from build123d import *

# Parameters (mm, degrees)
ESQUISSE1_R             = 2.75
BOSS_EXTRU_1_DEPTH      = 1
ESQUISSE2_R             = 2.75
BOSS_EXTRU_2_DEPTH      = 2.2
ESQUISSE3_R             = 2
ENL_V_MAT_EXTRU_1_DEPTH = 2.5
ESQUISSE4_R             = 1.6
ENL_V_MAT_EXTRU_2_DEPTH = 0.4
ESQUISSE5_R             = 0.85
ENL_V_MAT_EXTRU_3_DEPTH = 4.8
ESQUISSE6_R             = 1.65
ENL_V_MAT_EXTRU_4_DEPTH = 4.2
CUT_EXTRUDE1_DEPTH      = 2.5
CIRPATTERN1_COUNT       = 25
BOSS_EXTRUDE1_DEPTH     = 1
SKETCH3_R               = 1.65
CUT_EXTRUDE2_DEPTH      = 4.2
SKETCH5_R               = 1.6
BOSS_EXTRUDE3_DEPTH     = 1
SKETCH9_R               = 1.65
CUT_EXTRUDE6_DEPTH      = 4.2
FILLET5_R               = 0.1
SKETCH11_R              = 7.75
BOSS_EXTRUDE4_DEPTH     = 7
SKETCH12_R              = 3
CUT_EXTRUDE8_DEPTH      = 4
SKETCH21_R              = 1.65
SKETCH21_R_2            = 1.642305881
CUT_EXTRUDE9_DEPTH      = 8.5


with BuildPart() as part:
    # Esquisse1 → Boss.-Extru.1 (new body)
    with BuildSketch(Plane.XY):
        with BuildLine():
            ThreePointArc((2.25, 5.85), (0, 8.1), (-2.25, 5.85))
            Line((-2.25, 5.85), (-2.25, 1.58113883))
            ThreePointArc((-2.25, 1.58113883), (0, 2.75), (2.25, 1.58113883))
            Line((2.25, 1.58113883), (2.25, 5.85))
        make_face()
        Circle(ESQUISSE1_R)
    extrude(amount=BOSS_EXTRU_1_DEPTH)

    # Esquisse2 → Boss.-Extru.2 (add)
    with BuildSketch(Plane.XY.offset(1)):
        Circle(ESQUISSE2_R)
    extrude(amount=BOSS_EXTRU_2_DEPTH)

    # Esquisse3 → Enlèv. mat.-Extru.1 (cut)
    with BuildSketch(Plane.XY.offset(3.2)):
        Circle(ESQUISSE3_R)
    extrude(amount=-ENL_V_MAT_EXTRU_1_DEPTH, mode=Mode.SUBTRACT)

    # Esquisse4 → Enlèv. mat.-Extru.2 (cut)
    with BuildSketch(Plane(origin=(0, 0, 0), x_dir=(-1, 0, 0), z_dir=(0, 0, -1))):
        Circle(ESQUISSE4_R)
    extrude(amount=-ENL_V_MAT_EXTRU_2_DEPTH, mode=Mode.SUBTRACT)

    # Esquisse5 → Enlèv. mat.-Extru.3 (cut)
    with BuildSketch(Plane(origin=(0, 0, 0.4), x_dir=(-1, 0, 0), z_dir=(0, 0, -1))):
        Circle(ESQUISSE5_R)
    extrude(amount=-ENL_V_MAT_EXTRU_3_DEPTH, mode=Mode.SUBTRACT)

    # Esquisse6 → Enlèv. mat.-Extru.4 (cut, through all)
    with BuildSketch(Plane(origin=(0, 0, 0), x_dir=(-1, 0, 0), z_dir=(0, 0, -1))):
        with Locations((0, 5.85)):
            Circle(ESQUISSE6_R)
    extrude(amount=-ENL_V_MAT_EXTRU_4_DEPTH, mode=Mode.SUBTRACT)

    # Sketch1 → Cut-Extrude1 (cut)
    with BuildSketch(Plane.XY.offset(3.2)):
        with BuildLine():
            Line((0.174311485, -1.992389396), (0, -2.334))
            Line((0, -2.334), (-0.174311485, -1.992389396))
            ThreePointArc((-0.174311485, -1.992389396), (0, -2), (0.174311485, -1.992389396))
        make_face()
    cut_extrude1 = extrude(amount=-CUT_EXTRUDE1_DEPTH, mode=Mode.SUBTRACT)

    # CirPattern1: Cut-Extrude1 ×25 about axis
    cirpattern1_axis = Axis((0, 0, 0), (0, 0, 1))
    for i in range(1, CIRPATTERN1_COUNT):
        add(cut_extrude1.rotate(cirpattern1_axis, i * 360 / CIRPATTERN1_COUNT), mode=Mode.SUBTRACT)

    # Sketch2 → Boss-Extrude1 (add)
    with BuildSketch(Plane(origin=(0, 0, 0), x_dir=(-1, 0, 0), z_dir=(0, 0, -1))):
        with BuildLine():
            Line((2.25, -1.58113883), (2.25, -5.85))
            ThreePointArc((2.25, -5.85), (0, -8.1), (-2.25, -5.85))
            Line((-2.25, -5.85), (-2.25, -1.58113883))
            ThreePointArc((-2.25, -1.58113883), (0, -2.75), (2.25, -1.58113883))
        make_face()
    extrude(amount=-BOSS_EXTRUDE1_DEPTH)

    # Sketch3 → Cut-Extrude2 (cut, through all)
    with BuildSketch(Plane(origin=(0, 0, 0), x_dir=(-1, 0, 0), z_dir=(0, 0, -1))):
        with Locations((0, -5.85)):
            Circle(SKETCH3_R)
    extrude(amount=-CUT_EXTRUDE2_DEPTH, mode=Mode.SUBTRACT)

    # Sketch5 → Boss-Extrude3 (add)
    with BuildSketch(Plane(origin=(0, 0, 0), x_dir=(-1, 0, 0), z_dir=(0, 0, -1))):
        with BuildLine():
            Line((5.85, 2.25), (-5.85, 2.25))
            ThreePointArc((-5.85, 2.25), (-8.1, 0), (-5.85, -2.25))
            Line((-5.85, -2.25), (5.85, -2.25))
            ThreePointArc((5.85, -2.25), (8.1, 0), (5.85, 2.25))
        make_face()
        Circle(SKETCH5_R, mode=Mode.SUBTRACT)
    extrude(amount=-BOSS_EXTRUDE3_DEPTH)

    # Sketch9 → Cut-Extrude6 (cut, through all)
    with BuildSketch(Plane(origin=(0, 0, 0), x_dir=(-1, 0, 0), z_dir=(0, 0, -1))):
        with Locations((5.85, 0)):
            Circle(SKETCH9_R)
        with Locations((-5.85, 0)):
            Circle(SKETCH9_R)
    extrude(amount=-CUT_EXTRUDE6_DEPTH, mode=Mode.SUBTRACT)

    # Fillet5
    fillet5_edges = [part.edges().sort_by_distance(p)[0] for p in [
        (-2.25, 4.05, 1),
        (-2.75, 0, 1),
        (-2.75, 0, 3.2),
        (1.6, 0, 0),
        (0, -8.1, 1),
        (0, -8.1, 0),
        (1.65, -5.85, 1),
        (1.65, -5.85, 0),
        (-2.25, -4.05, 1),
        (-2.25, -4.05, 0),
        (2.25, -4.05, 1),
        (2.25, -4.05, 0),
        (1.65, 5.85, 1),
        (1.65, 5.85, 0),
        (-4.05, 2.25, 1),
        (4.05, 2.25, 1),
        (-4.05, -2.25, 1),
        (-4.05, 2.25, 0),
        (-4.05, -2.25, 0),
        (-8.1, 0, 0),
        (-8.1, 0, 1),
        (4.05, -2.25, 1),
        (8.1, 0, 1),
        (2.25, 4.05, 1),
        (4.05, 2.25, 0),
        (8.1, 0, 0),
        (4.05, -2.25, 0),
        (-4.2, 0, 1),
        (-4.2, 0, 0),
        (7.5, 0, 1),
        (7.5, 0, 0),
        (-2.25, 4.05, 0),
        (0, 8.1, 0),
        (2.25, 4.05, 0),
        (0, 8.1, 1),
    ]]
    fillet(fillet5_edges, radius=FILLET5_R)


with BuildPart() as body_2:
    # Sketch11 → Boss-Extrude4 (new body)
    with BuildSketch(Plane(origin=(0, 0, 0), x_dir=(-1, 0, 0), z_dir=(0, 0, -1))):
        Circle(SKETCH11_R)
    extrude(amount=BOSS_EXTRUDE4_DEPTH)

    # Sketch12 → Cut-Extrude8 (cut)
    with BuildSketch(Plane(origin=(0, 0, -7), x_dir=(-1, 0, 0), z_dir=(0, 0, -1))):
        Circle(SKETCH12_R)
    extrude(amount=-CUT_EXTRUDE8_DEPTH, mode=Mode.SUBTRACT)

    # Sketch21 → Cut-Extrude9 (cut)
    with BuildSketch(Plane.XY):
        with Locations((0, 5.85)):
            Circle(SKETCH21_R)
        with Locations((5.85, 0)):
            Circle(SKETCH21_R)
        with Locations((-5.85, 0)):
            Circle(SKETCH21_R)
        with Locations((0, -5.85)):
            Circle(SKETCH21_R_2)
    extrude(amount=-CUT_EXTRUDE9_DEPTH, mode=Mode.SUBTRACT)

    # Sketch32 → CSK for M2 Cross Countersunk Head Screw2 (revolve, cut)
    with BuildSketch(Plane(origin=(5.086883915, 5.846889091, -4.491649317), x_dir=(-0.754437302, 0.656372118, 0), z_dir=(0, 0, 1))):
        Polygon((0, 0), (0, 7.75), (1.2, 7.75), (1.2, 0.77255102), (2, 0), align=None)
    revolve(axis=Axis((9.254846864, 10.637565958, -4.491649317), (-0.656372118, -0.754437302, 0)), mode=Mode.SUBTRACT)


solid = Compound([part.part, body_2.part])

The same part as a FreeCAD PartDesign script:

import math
import FreeCAD as App
import Part
import Sketcher
from FreeCAD import Vector


def edges_at(feature, points):
    """Names of the edges that pass closest to the given points."""
    edges = feature.Shape.Edges
    near = lambda p: min(range(len(edges)), key=lambda i: edges[i].distToShape(Part.Vertex(*p))[0])
    return sorted({f"Edge{near(p) + 1}" for p in points})

doc = App.newDocument("Part")
params = doc.addObject("Spreadsheet::Sheet", "Params")
for row, (alias, value) in enumerate([
    ("sketch1_radius", "2.25 mm"),
    ("sketch1_radius2", "2.75 mm"),
    ("pad1_length", "1 mm"),
    ("sketch2_diameter", "5.5 mm"),
    ("pad2_length", "2.2 mm"),
    ("sketch3_diameter", "4 mm"),
    ("pocket1_length", "2.5 mm"),
    ("sketch4_diameter", "3.2 mm"),
    ("pocket2_length", "0.4 mm"),
    ("sketch5_diameter", "1.7 mm"),
    ("pocket3_length", "4.8 mm"),
    ("sketch6_diameter", "3.3 mm"),
    ("sketch7_radius", "2 mm"),
    ("pocket5_length", "2.5 mm"),
    ("sketch8_radius", "2.75 mm"),
    ("sketch8_radius2", "2.25 mm"),
    ("pad3_length", "1 mm"),
    ("sketch9_diameter", "3.3 mm"),
    ("sketch10_diameter", "3.2 mm"),
    ("sketch10_radius", "2.25 mm"),
    ("sketch10_width", "11.7 mm"),
    ("pad4_length", "1 mm"),
    ("sketch11_diameter", "3.3 mm"),
    ("fillet_radius", "0.1 mm"),
    ("sketch12_diameter", "15.5 mm"),
    ("pad5_length", "7 mm"),
    ("sketch13_diameter", "6 mm"),
    ("pocket8_length", "4 mm"),
    ("sketch14_diameter", "3.3 mm"),
    ("pocket9_length", "8.5 mm"),
    ("sketch15_length", "2 mm"),
    ("sketch15_length2", "1.2 mm"),
    ("sketch15_length3", "7.75 mm"),
    ("groove_angle", "360 deg"),
], start=1):
    params.set(f"A{row}", alias)
    params.set(f"B{row}", "=" + value)
    params.setAlias(f"B{row}", alias)

body = doc.addObject("PartDesign::Body", "Body")

# Sketch on XY plane
sketch1 = body.newObject("Sketcher::SketchObject", "Sketch")
sketch1.AttachmentSupport = (doc.getObject("XY_Plane"), [""])
sketch1.MapMode = "FlatFace"
sketch1.addGeometry(Part.ArcOfCircle(Part.Circle(Vector(0, 5.8, 0), Vector(0, 0, 1), 2.2), math.radians(0), math.radians(180)), False)
sketch1.addGeometry(Part.LineSegment(Vector(-2.2, 5.8, 0), Vector(-2.2, 1.6, 0)), False)
sketch1.addGeometry(Part.ArcOfCircle(Part.Circle(Vector(0, 0, 0), Vector(0, 0, 1), 2.8), math.radians(145), math.radians(395)), False)
sketch1.addGeometry(Part.LineSegment(Vector(2.2, 1.6, 0), Vector(2.2, 5.8, 0)), False)
sketch1.addConstraint(Sketcher.Constraint("Tangent", 0, 2, 1, 1))
sketch1.addConstraint(Sketcher.Constraint("Coincident", 1, 2, 2, 1))
sketch1.addConstraint(Sketcher.Constraint("Coincident", 2, 2, 3, 1))
sketch1.addConstraint(Sketcher.Constraint("Tangent", 3, 2, 0, 1))
sketch1.addConstraint(Sketcher.Constraint("Vertical", 1))
sketch1.addConstraint(Sketcher.Constraint("Vertical", 3))
sketch1.addConstraint(Sketcher.Constraint("Coincident", 2, 3, -1, 1))
sketch1.addConstraint(Sketcher.Constraint("PointOnObject", 0, 3, -2))
sketch1.addConstraint(Sketcher.Constraint("Radius", 0, 2.25))
sketch1.addConstraint(Sketcher.Constraint("Radius", 2, 2.75))
sketch1.addConstraint(Sketcher.Constraint("DistanceY", -1, 1, 0, 3, 5.85))
sketch1.setExpression("Constraints[8]", "Params.sketch1_radius")
sketch1.setExpression("Constraints[9]", "Params.sketch1_radius2")
pad1 = body.newObject("PartDesign::Pad", "Pad")
pad1.Profile = sketch1
pad1.setExpression("Length", "Params.pad1_length")

# Sketch on XY plane
sketch2 = body.newObject("Sketcher::SketchObject", "Sketch001")
sketch2.AttachmentSupport = (doc.getObject("XY_Plane"), [""])
sketch2.MapMode = "FlatFace"
sketch2.AttachmentOffset = App.Placement(Vector(0, 0, 1), App.Rotation())
sketch2.addGeometry(Part.Circle(Vector(0, 0, 0), Vector(0, 0, 1), 2.8), False)
sketch2.addConstraint(Sketcher.Constraint("Coincident", 0, 3, -1, 1))
sketch2.addConstraint(Sketcher.Constraint("Diameter", 0, 5.5))
sketch2.setExpression("Constraints[1]", "Params.sketch2_diameter")
pad2 = body.newObject("PartDesign::Pad", "Pad001")
pad2.Profile = sketch2
pad2.setExpression("Length", "Params.pad2_length")

# Sketch on XY plane
sketch3 = body.newObject("Sketcher::SketchObject", "Sketch002")
sketch3.AttachmentSupport = (doc.getObject("XY_Plane"), [""])
sketch3.MapMode = "FlatFace"
sketch3.AttachmentOffset = App.Placement(Vector(0, 0, 3.2), App.Rotation())
sketch3.addGeometry(Part.Circle(Vector(0, 0, 0), Vector(0, 0, 1), 2), False)
sketch3.addConstraint(Sketcher.Constraint("Coincident", 0, 3, -1, 1))
sketch3.addConstraint(Sketcher.Constraint("Diameter", 0, 4.0))
sketch3.setExpression("Constraints[1]", "Params.sketch3_diameter")
pocket1 = body.newObject("PartDesign::Pocket", "Pocket")
pocket1.Profile = sketch3
pocket1.setExpression("Length", "Params.pocket1_length")

# Sketch on XY plane
sketch4 = body.newObject("Sketcher::SketchObject", "Sketch003")
sketch4.AttachmentSupport = (doc.getObject("XY_Plane"), [""])
sketch4.MapMode = "FlatFace"
sketch4.addGeometry(Part.Circle(Vector(0, 0, 0), Vector(0, 0, 1), 1.6), False)
sketch4.addConstraint(Sketcher.Constraint("Coincident", 0, 3, -1, 1))
sketch4.addConstraint(Sketcher.Constraint("Diameter", 0, 3.2))
sketch4.setExpression("Constraints[1]", "Params.sketch4_diameter")
pocket2 = body.newObject("PartDesign::Pocket", "Pocket001")
pocket2.Profile = sketch4
pocket2.setExpression("Length", "Params.pocket2_length")
pocket2.Reversed = True

# Sketch on XY plane
sketch5 = body.newObject("Sketcher::SketchObject", "Sketch004")
sketch5.AttachmentSupport = (doc.getObject("XY_Plane"), [""])
sketch5.MapMode = "FlatFace"
sketch5.AttachmentOffset = App.Placement(Vector(0, 0, 0.4), App.Rotation())
sketch5.addGeometry(Part.Circle(Vector(0, 0, 0), Vector(0, 0, 1), 0.8), False)
sketch5.addConstraint(Sketcher.Constraint("Coincident", 0, 3, -1, 1))
sketch5.addConstraint(Sketcher.Constraint("Diameter", 0, 1.7))
sketch5.setExpression("Constraints[1]", "Params.sketch5_diameter")
pocket3 = body.newObject("PartDesign::Pocket", "Pocket002")
pocket3.Profile = sketch5
pocket3.setExpression("Length", "Params.pocket3_length")
pocket3.Reversed = True

# Sketch on XY plane
sketch6 = body.newObject("Sketcher::SketchObject", "Sketch005")
sketch6.AttachmentSupport = (doc.getObject("XY_Plane"), [""])
sketch6.MapMode = "FlatFace"
sketch6.addGeometry(Part.Circle(Vector(0, 5.8, 0), Vector(0, 0, 1), 1.6), False)
sketch6.addConstraint(Sketcher.Constraint("PointOnObject", 0, 3, -2))
sketch6.addConstraint(Sketcher.Constraint("Diameter", 0, 3.3))
sketch6.addConstraint(Sketcher.Constraint("DistanceY", -1, 1, 0, 3, 5.85))
sketch6.setExpression("Constraints[1]", "Params.sketch6_diameter")
pocket4 = body.newObject("PartDesign::Pocket", "Pocket003")
pocket4.Profile = sketch6
pocket4.Type = "ThroughAll"
pocket4.Reversed = True

# Sketch on XY plane
sketch7 = body.newObject("Sketcher::SketchObject", "Sketch006")
sketch7.AttachmentSupport = (doc.getObject("XY_Plane"), [""])
sketch7.MapMode = "FlatFace"
sketch7.AttachmentOffset = App.Placement(Vector(0, 0, 3.2), App.Rotation())
sketch7.addGeometry(Part.LineSegment(Vector(0, -2.33, 0), Vector(0.17, -1.99, 0)), False)
sketch7.addGeometry(Part.ArcOfCircle(Part.Circle(Vector(0, 0, 0), Vector(0, 0, 1), 2), math.radians(-95), math.radians(-85)), False)
sketch7.addGeometry(Part.LineSegment(Vector(-0.17, -1.99, 0), Vector(0, -2.33, 0)), False)
sketch7.addConstraint(Sketcher.Constraint("Coincident", 0, 2, 1, 2))
sketch7.addConstraint(Sketcher.Constraint("Coincident", 1, 1, 2, 1))
sketch7.addConstraint(Sketcher.Constraint("Coincident", 2, 2, 0, 1))
sketch7.addConstraint(Sketcher.Constraint("Coincident", 1, 3, -1, 1))
sketch7.addConstraint(Sketcher.Constraint("PointOnObject", 2, 2, -2))
sketch7.addConstraint(Sketcher.Constraint("Horizontal", 0, 2, 1, 1))
sketch7.addConstraint(Sketcher.Constraint("Radius", 1, 2.0))
sketch7.addConstraint(Sketcher.Constraint("DistanceY", 2, 2, -1, 1, 2.334))
sketch7.addConstraint(Sketcher.Constraint("DistanceX", -1, 1, 0, 2, 0.174311))
sketch7.setExpression("Constraints[6]", "Params.sketch7_radius")
pocket5 = body.newObject("PartDesign::Pocket", "Pocket004")
pocket5.Profile = sketch7
pocket5.setExpression("Length", "Params.pocket5_length")
doc.recompute()

polarpattern = body.newObject("PartDesign::PolarPattern", "PolarPattern")
polarpattern.Originals = [pocket5]
polarpattern.Axis = (doc.getObject("Z_Axis"), [""])
polarpattern.Angle = 360
polarpattern.Occurrences = 25
body.Tip = polarpattern

# Sketch on XY plane
sketch8 = body.newObject("Sketcher::SketchObject", "Sketch007")
sketch8.AttachmentSupport = (doc.getObject("XY_Plane"), [""])
sketch8.MapMode = "FlatFace"
sketch8.addGeometry(Part.LineSegment(Vector(-2.2, -5.8, 0), Vector(-2.2, -1.6, 0)), False)
sketch8.addGeometry(Part.ArcOfCircle(Part.Circle(Vector(0, 0, 0), Vector(0, 0, 1), 2.8), math.radians(-145), math.radians(-35)), False)
sketch8.addGeometry(Part.LineSegment(Vector(2.2, -1.6, 0), Vector(2.2, -5.8, 0)), False)
sketch8.addGeometry(Part.ArcOfCircle(Part.Circle(Vector(0, -5.8, 0), Vector(0, 0, 1), 2.2), math.radians(180), math.radians(360)), False)
sketch8.addConstraint(Sketcher.Constraint("Coincident", 0, 2, 1, 1))
sketch8.addConstraint(Sketcher.Constraint("Coincident", 1, 2, 2, 1))
sketch8.addConstraint(Sketcher.Constraint("Tangent", 2, 2, 3, 2))
sketch8.addConstraint(Sketcher.Constraint("Tangent", 3, 1, 0, 1))
sketch8.addConstraint(Sketcher.Constraint("Vertical", 0))
sketch8.addConstraint(Sketcher.Constraint("Vertical", 2))
sketch8.addConstraint(Sketcher.Constraint("Coincident", 1, 3, -1, 1))
sketch8.addConstraint(Sketcher.Constraint("PointOnObject", 3, 3, -2))
sketch8.addConstraint(Sketcher.Constraint("Radius", 1, 2.75))
sketch8.addConstraint(Sketcher.Constraint("Radius", 3, 2.25))
sketch8.addConstraint(Sketcher.Constraint("DistanceY", 3, 3, -1, 1, 5.85))
sketch8.setExpression("Constraints[8]", "Params.sketch8_radius")
sketch8.setExpression("Constraints[9]", "Params.sketch8_radius2")
pad3 = body.newObject("PartDesign::Pad", "Pad002")
pad3.Profile = sketch8
pad3.setExpression("Length", "Params.pad3_length")

# Sketch on XY plane
sketch9 = body.newObject("Sketcher::SketchObject", "Sketch008")
sketch9.AttachmentSupport = (doc.getObject("XY_Plane"), [""])
sketch9.MapMode = "FlatFace"
sketch9.addGeometry(Part.Circle(Vector(0, -5.8, 0), Vector(0, 0, 1), 1.6), False)
sketch9.addConstraint(Sketcher.Constraint("PointOnObject", 0, 3, -2))
sketch9.addConstraint(Sketcher.Constraint("Diameter", 0, 3.3))
sketch9.addConstraint(Sketcher.Constraint("DistanceY", 0, 3, -1, 1, 5.85))
sketch9.setExpression("Constraints[1]", "Params.sketch9_diameter")
pocket6 = body.newObject("PartDesign::Pocket", "Pocket005")
pocket6.Profile = sketch9
pocket6.Type = "ThroughAll"
pocket6.Reversed = True

# Sketch on XY plane
sketch10 = body.newObject("Sketcher::SketchObject", "Sketch009")
sketch10.AttachmentSupport = (doc.getObject("XY_Plane"), [""])
sketch10.MapMode = "FlatFace"
sketch10.addGeometry(Part.LineSegment(Vector(-5.8, 2.2, 0), Vector(5.8, 2.2, 0)), False)
sketch10.addGeometry(Part.ArcOfCircle(Part.Circle(Vector(5.8, 0, 0), Vector(0, 0, 1), 2.2), math.radians(-90), math.radians(90)), False)
sketch10.addGeometry(Part.LineSegment(Vector(5.8, -2.2, 0), Vector(-5.8, -2.2, 0)), False)
sketch10.addGeometry(Part.ArcOfCircle(Part.Circle(Vector(-5.8, 0, 0), Vector(0, 0, 1), 2.2), math.radians(90), math.radians(270)), False)
sketch10.addGeometry(Part.Circle(Vector(0, 0, 0), Vector(0, 0, 1), 1.6), False)
sketch10.addConstraint(Sketcher.Constraint("Tangent", 0, 2, 1, 2))
sketch10.addConstraint(Sketcher.Constraint("Tangent", 1, 1, 2, 1))
sketch10.addConstraint(Sketcher.Constraint("Tangent", 2, 2, 3, 2))
sketch10.addConstraint(Sketcher.Constraint("Tangent", 3, 1, 0, 1))
sketch10.addConstraint(Sketcher.Constraint("Horizontal", 0))
sketch10.addConstraint(Sketcher.Constraint("Horizontal", 2))
sketch10.addConstraint(Sketcher.Constraint("Coincident", 4, 3, -1, 1))
sketch10.addConstraint(Sketcher.Constraint("Symmetric", 1, 3, 3, 3, -1, 1))
sketch10.addConstraint(Sketcher.Constraint("Diameter", 4, 3.2))
sketch10.addConstraint(Sketcher.Constraint("Radius", 1, 2.25))
sketch10.addConstraint(Sketcher.Constraint("DistanceX", 0, 1, 0, 2, 11.7))
sketch10.setExpression("Constraints[8]", "Params.sketch10_diameter")
sketch10.setExpression("Constraints[9]", "Params.sketch10_radius")
sketch10.setExpression("Constraints[10]", "Params.sketch10_width")
pad4 = body.newObject("PartDesign::Pad", "Pad003")
pad4.Profile = sketch10
pad4.setExpression("Length", "Params.pad4_length")

# Sketch on XY plane
sketch11 = body.newObject("Sketcher::SketchObject", "Sketch010")
sketch11.AttachmentSupport = (doc.getObject("XY_Plane"), [""])
sketch11.MapMode = "FlatFace"
sketch11.addGeometry(Part.Circle(Vector(-5.8, 0, 0), Vector(0, 0, 1), 1.6), False)
sketch11.addGeometry(Part.Circle(Vector(5.8, 0, 0), Vector(0, 0, 1), 1.6), False)
sketch11.addConstraint(Sketcher.Constraint("Equal", 0, 1))
sketch11.addConstraint(Sketcher.Constraint("Symmetric", 0, 3, 1, 3, -1, 1))
sketch11.addConstraint(Sketcher.Constraint("PointOnObject", 0, 3, -1))
sketch11.addConstraint(Sketcher.Constraint("Diameter", 0, 3.3))
sketch11.addConstraint(Sketcher.Constraint("DistanceX", 0, 3, 1, 3, 11.7))
sketch11.setExpression("Constraints[3]", "Params.sketch11_diameter")
pocket7 = body.newObject("PartDesign::Pocket", "Pocket006")
pocket7.Profile = sketch11
pocket7.Type = "ThroughAll"
pocket7.Reversed = True
doc.recompute()

fillet = body.newObject("PartDesign::Fillet", "Fillet")
fillet.Base = (pocket7, edges_at(pocket7, [
    (-2.25, 4.05, 1),
    (-0.829, 2.622, 1),
    (-2.75, 0, 3.2),
    (1.6, 0, 0),
    (0, -8.1, 1),
    (0, -8.1, 0),
    (1.65, -5.85, 1),
    (1.65, -5.85, 0),
    (-2.25, -4.05, 1),
    (-2.25, -4.05, 0),
    (2.25, -4.05, 1),
    (2.25, -4.05, 0),
    (1.65, 5.85, 1),
    (1.65, 5.85, 0),
    (-4.05, 2.25, 1),
    (4.05, 2.25, 1),
    (-4.05, -2.25, 1),
    (-4.05, 2.25, 0),
    (-4.05, -2.25, 0),
    (-8.1, 0, 0),
    (-8.1, 0, 1),
    (4.05, -2.25, 1),
    (8.1, 0, 1),
    (2.25, 4.05, 1),
    (4.05, 2.25, 0),
    (8.1, 0, 0),
    (4.05, -2.25, 0),
    (-4.2, 0, 1),
    (-4.2, 0, 0),
    (7.5, 0, 1),
    (7.5, 0, 0),
    (-2.25, 4.05, 0),
    (0, 8.1, 0),
    (2.25, 4.05, 0),
    (0, 8.1, 1),
]))
fillet.setExpression("Radius", "Params.fillet_radius")
body2 = doc.addObject("PartDesign::Body", "Body001")

# Sketch on XY plane
sketch12 = body2.newObject("Sketcher::SketchObject", "Sketch011")
sketch12.AttachmentSupport = (doc.getObject("XY_Plane001"), [""])
sketch12.MapMode = "FlatFace"
sketch12.addGeometry(Part.Circle(Vector(0, 0, 0), Vector(0, 0, 1), 8), False)
sketch12.addConstraint(Sketcher.Constraint("Coincident", 0, 3, -1, 1))
sketch12.addConstraint(Sketcher.Constraint("Diameter", 0, 15.5))
sketch12.setExpression("Constraints[1]", "Params.sketch12_diameter")
pad5 = body2.newObject("PartDesign::Pad", "Pad004")
pad5.Profile = sketch12
pad5.setExpression("Length", "Params.pad5_length")
pad5.Reversed = True

# Sketch on XY plane
sketch13 = body2.newObject("Sketcher::SketchObject", "Sketch012")
sketch13.AttachmentSupport = (doc.getObject("XY_Plane001"), [""])
sketch13.MapMode = "FlatFace"
sketch13.AttachmentOffset = App.Placement(Vector(0, 0, -7), App.Rotation())
sketch13.addGeometry(Part.Circle(Vector(0, 0, 0), Vector(0, 0, 1), 3), False)
sketch13.addConstraint(Sketcher.Constraint("Coincident", 0, 3, -1, 1))
sketch13.addConstraint(Sketcher.Constraint("Diameter", 0, 6.0))
sketch13.setExpression("Constraints[1]", "Params.sketch13_diameter")
pocket8 = body2.newObject("PartDesign::Pocket", "Pocket007")
pocket8.Profile = sketch13
pocket8.setExpression("Length", "Params.pocket8_length")
pocket8.Reversed = True

# Sketch on XY plane
sketch14 = body2.newObject("Sketcher::SketchObject", "Sketch013")
sketch14.AttachmentSupport = (doc.getObject("XY_Plane001"), [""])
sketch14.MapMode = "FlatFace"
sketch14.addGeometry(Part.Circle(Vector(0, 5.8, 0), Vector(0, 0, 1), 1.6), False)
sketch14.addGeometry(Part.Circle(Vector(5.8, 0, 0), Vector(0, 0, 1), 1.6), False)
sketch14.addGeometry(Part.Circle(Vector(-5.8, 0, 0), Vector(0, 0, 1), 1.6), False)
sketch14.addGeometry(Part.Circle(Vector(0, -5.8, 0), Vector(0, 0, 1), 1.6), False)
sketch14.addConstraint(Sketcher.Constraint("Equal", 0, 1))
sketch14.addConstraint(Sketcher.Constraint("Equal", 1, 2))
sketch14.addConstraint(Sketcher.Constraint("Symmetric", 1, 3, 2, 3, -1, 1))
sketch14.addConstraint(Sketcher.Constraint("Symmetric", 0, 3, 3, 3, -1, 1))
sketch14.addConstraint(Sketcher.Constraint("PointOnObject", 0, 3, -2))
sketch14.addConstraint(Sketcher.Constraint("PointOnObject", 1, 3, -1))
sketch14.addConstraint(Sketcher.Constraint("Diameter", 0, 3.3))
sketch14.addConstraint(Sketcher.Constraint("DistanceX", 2, 3, 1, 3, 11.7))
sketch14.addConstraint(Sketcher.Constraint("DistanceY", 3, 3, 0, 3, 11.7))
sketch14.addConstraint(Sketcher.Constraint("Diameter", 3, 3.284612))
sketch14.setExpression("Constraints[6]", "Params.sketch14_diameter")
pocket9 = body2.newObject("PartDesign::Pocket", "Pocket008")
pocket9.Profile = sketch14
pocket9.setExpression("Length", "Params.pocket9_length")

# Sketch on XY plane
sketch15 = body2.newObject("Sketcher::SketchObject", "Sketch014")
sketch15.AttachmentSupport = (doc.getObject("XY_Plane001"), [""])
sketch15.MapMode = "FlatFace"
sketch15.AttachmentOffset = App.Placement(Vector(0, 0, -4.491649), App.Rotation())
sketch15.addGeometry(Part.LineSegment(Vector(0, 0, 0), Vector(5.1, 5.8, 0)), False)
sketch15.addGeometry(Part.LineSegment(Vector(5.1, 5.8, 0), Vector(3.6, 7.2, 0)), False)
sketch15.addGeometry(Part.LineSegment(Vector(3.6, 7.2, 0), Vector(3.7, 6.1, 0)), False)
sketch15.addGeometry(Part.LineSegment(Vector(3.7, 6.1, 0), Vector(-0.9, 0.8, 0)), False)
sketch15.addGeometry(Part.LineSegment(Vector(-0.9, 0.8, 0), Vector(0, 0, 0)), False)
sketch15.addGeometry(Part.LineSegment(Vector(5.1, 5.8, 0), Vector(0, 0, 0)), True)  # axis
sketch15.addConstraint(Sketcher.Constraint("Coincident", 0, 2, 1, 1))
sketch15.addConstraint(Sketcher.Constraint("Coincident", 1, 2, 2, 1))
sketch15.addConstraint(Sketcher.Constraint("Coincident", 2, 2, 3, 1))
sketch15.addConstraint(Sketcher.Constraint("Coincident", 3, 2, 4, 1))
sketch15.addConstraint(Sketcher.Constraint("Coincident", 4, 2, 0, 1))
sketch15.addConstraint(Sketcher.Constraint("Coincident", 4, 2, -1, 1))
sketch15.addConstraint(Sketcher.Constraint("Coincident", 5, 2, -1, 1))
sketch15.addConstraint(Sketcher.Constraint("Coincident", 5, 1, 0, 2))
sketch15.addConstraint(Sketcher.Constraint("Perpendicular", 0, 1))
sketch15.addConstraint(Sketcher.Constraint("Perpendicular", 1, 3))
sketch15.addConstraint(Sketcher.Constraint("Perpendicular", 3, 4))
sketch15.addConstraint(Sketcher.Constraint("Distance", 1, 2.0))
sketch15.addConstraint(Sketcher.Constraint("Distance", 4, 1.2))
sketch15.addConstraint(Sketcher.Constraint("Distance", 0, 7.75))
sketch15.addConstraint(Sketcher.Constraint("Distance", 2, 1.112131))
sketch15.addConstraint(Sketcher.Constraint("DistanceY", -1, 1, 0, 2, 5.846889))
sketch15.setExpression("Constraints[11]", "Params.sketch15_length")
sketch15.setExpression("Constraints[12]", "Params.sketch15_length2")
sketch15.setExpression("Constraints[13]", "Params.sketch15_length3")
groove = body2.newObject("PartDesign::Groove", "Groove")
groove.Profile = sketch15
groove.ReferenceAxis = (sketch15, ["Axis0"])
groove.setExpression("Angle", "Params.groove_angle")

doc.recompute()
